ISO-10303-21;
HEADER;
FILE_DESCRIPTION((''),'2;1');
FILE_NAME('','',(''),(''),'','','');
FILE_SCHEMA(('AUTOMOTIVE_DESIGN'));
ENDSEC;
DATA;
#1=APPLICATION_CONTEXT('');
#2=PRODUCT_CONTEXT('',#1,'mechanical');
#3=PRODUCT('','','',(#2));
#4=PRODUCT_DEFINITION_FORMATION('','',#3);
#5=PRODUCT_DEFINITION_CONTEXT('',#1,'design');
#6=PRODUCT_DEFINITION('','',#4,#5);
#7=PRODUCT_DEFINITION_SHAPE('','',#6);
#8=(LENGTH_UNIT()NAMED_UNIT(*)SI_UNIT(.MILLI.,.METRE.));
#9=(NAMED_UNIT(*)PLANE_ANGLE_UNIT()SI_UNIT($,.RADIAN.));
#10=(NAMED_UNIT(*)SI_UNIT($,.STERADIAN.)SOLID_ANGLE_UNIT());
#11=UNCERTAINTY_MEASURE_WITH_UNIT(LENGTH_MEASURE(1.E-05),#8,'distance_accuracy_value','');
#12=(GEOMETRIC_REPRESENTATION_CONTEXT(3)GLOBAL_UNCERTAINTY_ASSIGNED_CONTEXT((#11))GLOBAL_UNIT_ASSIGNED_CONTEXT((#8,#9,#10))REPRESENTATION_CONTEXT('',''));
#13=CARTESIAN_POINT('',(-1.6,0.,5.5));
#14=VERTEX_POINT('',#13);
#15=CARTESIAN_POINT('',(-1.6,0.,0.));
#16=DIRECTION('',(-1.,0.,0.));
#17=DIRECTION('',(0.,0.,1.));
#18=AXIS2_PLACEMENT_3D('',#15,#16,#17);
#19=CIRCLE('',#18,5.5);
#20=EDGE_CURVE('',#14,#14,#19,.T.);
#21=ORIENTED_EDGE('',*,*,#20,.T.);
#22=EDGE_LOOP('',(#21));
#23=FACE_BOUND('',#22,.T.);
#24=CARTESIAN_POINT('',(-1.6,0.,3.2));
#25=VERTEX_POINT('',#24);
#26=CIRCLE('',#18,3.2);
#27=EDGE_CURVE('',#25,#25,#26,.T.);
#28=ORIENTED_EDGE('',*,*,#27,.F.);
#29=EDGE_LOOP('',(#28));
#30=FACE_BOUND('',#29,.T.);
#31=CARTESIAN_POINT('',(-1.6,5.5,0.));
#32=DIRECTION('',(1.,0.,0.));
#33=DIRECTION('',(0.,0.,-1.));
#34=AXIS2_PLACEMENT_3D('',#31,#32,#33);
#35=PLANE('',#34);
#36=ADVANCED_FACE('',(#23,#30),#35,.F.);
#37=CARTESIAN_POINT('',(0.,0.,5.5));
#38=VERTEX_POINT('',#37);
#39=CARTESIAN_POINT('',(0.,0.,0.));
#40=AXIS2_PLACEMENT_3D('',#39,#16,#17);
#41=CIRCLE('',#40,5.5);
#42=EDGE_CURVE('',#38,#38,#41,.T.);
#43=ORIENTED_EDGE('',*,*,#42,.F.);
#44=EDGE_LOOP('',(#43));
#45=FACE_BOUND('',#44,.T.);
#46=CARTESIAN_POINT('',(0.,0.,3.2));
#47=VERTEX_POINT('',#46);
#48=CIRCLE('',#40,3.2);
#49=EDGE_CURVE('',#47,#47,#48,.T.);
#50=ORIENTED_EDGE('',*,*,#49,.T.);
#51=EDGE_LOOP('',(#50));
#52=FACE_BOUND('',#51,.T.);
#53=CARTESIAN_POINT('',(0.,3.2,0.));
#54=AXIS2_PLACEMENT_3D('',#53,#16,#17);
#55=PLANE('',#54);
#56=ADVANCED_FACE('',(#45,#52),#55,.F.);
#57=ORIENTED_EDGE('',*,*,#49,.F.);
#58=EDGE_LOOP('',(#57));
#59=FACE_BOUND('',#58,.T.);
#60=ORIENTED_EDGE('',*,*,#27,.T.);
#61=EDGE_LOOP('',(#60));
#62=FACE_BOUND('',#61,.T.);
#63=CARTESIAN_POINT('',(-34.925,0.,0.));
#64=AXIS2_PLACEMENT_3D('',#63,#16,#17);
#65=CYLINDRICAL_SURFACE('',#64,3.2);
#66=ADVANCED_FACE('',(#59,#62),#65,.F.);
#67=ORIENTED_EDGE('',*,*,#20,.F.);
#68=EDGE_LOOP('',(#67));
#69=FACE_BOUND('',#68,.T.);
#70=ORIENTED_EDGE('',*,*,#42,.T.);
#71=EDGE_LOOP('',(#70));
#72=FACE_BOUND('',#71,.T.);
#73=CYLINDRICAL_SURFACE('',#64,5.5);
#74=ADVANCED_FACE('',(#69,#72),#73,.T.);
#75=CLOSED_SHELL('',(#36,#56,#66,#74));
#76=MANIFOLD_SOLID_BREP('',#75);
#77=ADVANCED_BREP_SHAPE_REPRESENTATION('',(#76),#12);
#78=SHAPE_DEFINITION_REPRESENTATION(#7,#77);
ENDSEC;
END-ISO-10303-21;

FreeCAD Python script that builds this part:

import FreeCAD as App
import Part
import Sketcher

V = App.Vector
Q = App.Units.Quantity

doc = App.newDocument("Part")
body = doc.addObject("PartDesign::Body", "Body")

# Sketch on XY plane
sketch1 = body.newObject("Sketcher::SketchObject", "Sketch")
sketch1.AttachmentSupport = (doc.getObject("XY_Plane"), [""])
sketch1.MapMode = "FlatFace"
sketch1.addGeometry(Part.LineSegment(V(-1.6, 5.5, 0), V(-1.6, 3.2, 0)), False)
sketch1.addGeometry(Part.LineSegment(V(-1.6, 3.2, 0), V(0, 3.2, 0)), False)
sketch1.addGeometry(Part.LineSegment(V(0, 3.2, 0), V(0, 5.5, 0)), False)
sketch1.addGeometry(Part.LineSegment(V(0, 5.5, 0), V(-1.6, 5.5, 0)), False)
sketch1.addConstraint(Sketcher.Constraint("Coincident", 0, 2, 1, 1))
sketch1.addConstraint(Sketcher.Constraint("Coincident", 1, 2, 2, 1))
sketch1.addConstraint(Sketcher.Constraint("Coincident", 2, 2, 3, 1))
sketch1.addConstraint(Sketcher.Constraint("Coincident", 3, 2, 0, 1))
sketch1.addConstraint(Sketcher.Constraint("Vertical", 0))
sketch1.addConstraint(Sketcher.Constraint("Horizontal", 1))
sketch1.addConstraint(Sketcher.Constraint("Vertical", 2))
sketch1.addConstraint(Sketcher.Constraint("Horizontal", 3))
sketch1.addConstraint(Sketcher.Constraint("PointOnObject", 1, 2, -2))
sketch1.addConstraint(Sketcher.Constraint("DistanceX", 1, 1, 1, 2, Q("1.6 mm")))
sketch1.addConstraint(Sketcher.Constraint("DistanceY", 0, 2, 0, 1, Q("2.3 mm")))
sketch1.addConstraint(Sketcher.Constraint("DistanceY", -1, 1, 0, 2, Q("3.2 mm")))
revolution = body.newObject("PartDesign::Revolution", "Revolution")
revolution.Profile = sketch1
revolution.ReferenceAxis = (sketch1, ["H_Axis"])
revolution.Angle = 360

doc.recompute()
